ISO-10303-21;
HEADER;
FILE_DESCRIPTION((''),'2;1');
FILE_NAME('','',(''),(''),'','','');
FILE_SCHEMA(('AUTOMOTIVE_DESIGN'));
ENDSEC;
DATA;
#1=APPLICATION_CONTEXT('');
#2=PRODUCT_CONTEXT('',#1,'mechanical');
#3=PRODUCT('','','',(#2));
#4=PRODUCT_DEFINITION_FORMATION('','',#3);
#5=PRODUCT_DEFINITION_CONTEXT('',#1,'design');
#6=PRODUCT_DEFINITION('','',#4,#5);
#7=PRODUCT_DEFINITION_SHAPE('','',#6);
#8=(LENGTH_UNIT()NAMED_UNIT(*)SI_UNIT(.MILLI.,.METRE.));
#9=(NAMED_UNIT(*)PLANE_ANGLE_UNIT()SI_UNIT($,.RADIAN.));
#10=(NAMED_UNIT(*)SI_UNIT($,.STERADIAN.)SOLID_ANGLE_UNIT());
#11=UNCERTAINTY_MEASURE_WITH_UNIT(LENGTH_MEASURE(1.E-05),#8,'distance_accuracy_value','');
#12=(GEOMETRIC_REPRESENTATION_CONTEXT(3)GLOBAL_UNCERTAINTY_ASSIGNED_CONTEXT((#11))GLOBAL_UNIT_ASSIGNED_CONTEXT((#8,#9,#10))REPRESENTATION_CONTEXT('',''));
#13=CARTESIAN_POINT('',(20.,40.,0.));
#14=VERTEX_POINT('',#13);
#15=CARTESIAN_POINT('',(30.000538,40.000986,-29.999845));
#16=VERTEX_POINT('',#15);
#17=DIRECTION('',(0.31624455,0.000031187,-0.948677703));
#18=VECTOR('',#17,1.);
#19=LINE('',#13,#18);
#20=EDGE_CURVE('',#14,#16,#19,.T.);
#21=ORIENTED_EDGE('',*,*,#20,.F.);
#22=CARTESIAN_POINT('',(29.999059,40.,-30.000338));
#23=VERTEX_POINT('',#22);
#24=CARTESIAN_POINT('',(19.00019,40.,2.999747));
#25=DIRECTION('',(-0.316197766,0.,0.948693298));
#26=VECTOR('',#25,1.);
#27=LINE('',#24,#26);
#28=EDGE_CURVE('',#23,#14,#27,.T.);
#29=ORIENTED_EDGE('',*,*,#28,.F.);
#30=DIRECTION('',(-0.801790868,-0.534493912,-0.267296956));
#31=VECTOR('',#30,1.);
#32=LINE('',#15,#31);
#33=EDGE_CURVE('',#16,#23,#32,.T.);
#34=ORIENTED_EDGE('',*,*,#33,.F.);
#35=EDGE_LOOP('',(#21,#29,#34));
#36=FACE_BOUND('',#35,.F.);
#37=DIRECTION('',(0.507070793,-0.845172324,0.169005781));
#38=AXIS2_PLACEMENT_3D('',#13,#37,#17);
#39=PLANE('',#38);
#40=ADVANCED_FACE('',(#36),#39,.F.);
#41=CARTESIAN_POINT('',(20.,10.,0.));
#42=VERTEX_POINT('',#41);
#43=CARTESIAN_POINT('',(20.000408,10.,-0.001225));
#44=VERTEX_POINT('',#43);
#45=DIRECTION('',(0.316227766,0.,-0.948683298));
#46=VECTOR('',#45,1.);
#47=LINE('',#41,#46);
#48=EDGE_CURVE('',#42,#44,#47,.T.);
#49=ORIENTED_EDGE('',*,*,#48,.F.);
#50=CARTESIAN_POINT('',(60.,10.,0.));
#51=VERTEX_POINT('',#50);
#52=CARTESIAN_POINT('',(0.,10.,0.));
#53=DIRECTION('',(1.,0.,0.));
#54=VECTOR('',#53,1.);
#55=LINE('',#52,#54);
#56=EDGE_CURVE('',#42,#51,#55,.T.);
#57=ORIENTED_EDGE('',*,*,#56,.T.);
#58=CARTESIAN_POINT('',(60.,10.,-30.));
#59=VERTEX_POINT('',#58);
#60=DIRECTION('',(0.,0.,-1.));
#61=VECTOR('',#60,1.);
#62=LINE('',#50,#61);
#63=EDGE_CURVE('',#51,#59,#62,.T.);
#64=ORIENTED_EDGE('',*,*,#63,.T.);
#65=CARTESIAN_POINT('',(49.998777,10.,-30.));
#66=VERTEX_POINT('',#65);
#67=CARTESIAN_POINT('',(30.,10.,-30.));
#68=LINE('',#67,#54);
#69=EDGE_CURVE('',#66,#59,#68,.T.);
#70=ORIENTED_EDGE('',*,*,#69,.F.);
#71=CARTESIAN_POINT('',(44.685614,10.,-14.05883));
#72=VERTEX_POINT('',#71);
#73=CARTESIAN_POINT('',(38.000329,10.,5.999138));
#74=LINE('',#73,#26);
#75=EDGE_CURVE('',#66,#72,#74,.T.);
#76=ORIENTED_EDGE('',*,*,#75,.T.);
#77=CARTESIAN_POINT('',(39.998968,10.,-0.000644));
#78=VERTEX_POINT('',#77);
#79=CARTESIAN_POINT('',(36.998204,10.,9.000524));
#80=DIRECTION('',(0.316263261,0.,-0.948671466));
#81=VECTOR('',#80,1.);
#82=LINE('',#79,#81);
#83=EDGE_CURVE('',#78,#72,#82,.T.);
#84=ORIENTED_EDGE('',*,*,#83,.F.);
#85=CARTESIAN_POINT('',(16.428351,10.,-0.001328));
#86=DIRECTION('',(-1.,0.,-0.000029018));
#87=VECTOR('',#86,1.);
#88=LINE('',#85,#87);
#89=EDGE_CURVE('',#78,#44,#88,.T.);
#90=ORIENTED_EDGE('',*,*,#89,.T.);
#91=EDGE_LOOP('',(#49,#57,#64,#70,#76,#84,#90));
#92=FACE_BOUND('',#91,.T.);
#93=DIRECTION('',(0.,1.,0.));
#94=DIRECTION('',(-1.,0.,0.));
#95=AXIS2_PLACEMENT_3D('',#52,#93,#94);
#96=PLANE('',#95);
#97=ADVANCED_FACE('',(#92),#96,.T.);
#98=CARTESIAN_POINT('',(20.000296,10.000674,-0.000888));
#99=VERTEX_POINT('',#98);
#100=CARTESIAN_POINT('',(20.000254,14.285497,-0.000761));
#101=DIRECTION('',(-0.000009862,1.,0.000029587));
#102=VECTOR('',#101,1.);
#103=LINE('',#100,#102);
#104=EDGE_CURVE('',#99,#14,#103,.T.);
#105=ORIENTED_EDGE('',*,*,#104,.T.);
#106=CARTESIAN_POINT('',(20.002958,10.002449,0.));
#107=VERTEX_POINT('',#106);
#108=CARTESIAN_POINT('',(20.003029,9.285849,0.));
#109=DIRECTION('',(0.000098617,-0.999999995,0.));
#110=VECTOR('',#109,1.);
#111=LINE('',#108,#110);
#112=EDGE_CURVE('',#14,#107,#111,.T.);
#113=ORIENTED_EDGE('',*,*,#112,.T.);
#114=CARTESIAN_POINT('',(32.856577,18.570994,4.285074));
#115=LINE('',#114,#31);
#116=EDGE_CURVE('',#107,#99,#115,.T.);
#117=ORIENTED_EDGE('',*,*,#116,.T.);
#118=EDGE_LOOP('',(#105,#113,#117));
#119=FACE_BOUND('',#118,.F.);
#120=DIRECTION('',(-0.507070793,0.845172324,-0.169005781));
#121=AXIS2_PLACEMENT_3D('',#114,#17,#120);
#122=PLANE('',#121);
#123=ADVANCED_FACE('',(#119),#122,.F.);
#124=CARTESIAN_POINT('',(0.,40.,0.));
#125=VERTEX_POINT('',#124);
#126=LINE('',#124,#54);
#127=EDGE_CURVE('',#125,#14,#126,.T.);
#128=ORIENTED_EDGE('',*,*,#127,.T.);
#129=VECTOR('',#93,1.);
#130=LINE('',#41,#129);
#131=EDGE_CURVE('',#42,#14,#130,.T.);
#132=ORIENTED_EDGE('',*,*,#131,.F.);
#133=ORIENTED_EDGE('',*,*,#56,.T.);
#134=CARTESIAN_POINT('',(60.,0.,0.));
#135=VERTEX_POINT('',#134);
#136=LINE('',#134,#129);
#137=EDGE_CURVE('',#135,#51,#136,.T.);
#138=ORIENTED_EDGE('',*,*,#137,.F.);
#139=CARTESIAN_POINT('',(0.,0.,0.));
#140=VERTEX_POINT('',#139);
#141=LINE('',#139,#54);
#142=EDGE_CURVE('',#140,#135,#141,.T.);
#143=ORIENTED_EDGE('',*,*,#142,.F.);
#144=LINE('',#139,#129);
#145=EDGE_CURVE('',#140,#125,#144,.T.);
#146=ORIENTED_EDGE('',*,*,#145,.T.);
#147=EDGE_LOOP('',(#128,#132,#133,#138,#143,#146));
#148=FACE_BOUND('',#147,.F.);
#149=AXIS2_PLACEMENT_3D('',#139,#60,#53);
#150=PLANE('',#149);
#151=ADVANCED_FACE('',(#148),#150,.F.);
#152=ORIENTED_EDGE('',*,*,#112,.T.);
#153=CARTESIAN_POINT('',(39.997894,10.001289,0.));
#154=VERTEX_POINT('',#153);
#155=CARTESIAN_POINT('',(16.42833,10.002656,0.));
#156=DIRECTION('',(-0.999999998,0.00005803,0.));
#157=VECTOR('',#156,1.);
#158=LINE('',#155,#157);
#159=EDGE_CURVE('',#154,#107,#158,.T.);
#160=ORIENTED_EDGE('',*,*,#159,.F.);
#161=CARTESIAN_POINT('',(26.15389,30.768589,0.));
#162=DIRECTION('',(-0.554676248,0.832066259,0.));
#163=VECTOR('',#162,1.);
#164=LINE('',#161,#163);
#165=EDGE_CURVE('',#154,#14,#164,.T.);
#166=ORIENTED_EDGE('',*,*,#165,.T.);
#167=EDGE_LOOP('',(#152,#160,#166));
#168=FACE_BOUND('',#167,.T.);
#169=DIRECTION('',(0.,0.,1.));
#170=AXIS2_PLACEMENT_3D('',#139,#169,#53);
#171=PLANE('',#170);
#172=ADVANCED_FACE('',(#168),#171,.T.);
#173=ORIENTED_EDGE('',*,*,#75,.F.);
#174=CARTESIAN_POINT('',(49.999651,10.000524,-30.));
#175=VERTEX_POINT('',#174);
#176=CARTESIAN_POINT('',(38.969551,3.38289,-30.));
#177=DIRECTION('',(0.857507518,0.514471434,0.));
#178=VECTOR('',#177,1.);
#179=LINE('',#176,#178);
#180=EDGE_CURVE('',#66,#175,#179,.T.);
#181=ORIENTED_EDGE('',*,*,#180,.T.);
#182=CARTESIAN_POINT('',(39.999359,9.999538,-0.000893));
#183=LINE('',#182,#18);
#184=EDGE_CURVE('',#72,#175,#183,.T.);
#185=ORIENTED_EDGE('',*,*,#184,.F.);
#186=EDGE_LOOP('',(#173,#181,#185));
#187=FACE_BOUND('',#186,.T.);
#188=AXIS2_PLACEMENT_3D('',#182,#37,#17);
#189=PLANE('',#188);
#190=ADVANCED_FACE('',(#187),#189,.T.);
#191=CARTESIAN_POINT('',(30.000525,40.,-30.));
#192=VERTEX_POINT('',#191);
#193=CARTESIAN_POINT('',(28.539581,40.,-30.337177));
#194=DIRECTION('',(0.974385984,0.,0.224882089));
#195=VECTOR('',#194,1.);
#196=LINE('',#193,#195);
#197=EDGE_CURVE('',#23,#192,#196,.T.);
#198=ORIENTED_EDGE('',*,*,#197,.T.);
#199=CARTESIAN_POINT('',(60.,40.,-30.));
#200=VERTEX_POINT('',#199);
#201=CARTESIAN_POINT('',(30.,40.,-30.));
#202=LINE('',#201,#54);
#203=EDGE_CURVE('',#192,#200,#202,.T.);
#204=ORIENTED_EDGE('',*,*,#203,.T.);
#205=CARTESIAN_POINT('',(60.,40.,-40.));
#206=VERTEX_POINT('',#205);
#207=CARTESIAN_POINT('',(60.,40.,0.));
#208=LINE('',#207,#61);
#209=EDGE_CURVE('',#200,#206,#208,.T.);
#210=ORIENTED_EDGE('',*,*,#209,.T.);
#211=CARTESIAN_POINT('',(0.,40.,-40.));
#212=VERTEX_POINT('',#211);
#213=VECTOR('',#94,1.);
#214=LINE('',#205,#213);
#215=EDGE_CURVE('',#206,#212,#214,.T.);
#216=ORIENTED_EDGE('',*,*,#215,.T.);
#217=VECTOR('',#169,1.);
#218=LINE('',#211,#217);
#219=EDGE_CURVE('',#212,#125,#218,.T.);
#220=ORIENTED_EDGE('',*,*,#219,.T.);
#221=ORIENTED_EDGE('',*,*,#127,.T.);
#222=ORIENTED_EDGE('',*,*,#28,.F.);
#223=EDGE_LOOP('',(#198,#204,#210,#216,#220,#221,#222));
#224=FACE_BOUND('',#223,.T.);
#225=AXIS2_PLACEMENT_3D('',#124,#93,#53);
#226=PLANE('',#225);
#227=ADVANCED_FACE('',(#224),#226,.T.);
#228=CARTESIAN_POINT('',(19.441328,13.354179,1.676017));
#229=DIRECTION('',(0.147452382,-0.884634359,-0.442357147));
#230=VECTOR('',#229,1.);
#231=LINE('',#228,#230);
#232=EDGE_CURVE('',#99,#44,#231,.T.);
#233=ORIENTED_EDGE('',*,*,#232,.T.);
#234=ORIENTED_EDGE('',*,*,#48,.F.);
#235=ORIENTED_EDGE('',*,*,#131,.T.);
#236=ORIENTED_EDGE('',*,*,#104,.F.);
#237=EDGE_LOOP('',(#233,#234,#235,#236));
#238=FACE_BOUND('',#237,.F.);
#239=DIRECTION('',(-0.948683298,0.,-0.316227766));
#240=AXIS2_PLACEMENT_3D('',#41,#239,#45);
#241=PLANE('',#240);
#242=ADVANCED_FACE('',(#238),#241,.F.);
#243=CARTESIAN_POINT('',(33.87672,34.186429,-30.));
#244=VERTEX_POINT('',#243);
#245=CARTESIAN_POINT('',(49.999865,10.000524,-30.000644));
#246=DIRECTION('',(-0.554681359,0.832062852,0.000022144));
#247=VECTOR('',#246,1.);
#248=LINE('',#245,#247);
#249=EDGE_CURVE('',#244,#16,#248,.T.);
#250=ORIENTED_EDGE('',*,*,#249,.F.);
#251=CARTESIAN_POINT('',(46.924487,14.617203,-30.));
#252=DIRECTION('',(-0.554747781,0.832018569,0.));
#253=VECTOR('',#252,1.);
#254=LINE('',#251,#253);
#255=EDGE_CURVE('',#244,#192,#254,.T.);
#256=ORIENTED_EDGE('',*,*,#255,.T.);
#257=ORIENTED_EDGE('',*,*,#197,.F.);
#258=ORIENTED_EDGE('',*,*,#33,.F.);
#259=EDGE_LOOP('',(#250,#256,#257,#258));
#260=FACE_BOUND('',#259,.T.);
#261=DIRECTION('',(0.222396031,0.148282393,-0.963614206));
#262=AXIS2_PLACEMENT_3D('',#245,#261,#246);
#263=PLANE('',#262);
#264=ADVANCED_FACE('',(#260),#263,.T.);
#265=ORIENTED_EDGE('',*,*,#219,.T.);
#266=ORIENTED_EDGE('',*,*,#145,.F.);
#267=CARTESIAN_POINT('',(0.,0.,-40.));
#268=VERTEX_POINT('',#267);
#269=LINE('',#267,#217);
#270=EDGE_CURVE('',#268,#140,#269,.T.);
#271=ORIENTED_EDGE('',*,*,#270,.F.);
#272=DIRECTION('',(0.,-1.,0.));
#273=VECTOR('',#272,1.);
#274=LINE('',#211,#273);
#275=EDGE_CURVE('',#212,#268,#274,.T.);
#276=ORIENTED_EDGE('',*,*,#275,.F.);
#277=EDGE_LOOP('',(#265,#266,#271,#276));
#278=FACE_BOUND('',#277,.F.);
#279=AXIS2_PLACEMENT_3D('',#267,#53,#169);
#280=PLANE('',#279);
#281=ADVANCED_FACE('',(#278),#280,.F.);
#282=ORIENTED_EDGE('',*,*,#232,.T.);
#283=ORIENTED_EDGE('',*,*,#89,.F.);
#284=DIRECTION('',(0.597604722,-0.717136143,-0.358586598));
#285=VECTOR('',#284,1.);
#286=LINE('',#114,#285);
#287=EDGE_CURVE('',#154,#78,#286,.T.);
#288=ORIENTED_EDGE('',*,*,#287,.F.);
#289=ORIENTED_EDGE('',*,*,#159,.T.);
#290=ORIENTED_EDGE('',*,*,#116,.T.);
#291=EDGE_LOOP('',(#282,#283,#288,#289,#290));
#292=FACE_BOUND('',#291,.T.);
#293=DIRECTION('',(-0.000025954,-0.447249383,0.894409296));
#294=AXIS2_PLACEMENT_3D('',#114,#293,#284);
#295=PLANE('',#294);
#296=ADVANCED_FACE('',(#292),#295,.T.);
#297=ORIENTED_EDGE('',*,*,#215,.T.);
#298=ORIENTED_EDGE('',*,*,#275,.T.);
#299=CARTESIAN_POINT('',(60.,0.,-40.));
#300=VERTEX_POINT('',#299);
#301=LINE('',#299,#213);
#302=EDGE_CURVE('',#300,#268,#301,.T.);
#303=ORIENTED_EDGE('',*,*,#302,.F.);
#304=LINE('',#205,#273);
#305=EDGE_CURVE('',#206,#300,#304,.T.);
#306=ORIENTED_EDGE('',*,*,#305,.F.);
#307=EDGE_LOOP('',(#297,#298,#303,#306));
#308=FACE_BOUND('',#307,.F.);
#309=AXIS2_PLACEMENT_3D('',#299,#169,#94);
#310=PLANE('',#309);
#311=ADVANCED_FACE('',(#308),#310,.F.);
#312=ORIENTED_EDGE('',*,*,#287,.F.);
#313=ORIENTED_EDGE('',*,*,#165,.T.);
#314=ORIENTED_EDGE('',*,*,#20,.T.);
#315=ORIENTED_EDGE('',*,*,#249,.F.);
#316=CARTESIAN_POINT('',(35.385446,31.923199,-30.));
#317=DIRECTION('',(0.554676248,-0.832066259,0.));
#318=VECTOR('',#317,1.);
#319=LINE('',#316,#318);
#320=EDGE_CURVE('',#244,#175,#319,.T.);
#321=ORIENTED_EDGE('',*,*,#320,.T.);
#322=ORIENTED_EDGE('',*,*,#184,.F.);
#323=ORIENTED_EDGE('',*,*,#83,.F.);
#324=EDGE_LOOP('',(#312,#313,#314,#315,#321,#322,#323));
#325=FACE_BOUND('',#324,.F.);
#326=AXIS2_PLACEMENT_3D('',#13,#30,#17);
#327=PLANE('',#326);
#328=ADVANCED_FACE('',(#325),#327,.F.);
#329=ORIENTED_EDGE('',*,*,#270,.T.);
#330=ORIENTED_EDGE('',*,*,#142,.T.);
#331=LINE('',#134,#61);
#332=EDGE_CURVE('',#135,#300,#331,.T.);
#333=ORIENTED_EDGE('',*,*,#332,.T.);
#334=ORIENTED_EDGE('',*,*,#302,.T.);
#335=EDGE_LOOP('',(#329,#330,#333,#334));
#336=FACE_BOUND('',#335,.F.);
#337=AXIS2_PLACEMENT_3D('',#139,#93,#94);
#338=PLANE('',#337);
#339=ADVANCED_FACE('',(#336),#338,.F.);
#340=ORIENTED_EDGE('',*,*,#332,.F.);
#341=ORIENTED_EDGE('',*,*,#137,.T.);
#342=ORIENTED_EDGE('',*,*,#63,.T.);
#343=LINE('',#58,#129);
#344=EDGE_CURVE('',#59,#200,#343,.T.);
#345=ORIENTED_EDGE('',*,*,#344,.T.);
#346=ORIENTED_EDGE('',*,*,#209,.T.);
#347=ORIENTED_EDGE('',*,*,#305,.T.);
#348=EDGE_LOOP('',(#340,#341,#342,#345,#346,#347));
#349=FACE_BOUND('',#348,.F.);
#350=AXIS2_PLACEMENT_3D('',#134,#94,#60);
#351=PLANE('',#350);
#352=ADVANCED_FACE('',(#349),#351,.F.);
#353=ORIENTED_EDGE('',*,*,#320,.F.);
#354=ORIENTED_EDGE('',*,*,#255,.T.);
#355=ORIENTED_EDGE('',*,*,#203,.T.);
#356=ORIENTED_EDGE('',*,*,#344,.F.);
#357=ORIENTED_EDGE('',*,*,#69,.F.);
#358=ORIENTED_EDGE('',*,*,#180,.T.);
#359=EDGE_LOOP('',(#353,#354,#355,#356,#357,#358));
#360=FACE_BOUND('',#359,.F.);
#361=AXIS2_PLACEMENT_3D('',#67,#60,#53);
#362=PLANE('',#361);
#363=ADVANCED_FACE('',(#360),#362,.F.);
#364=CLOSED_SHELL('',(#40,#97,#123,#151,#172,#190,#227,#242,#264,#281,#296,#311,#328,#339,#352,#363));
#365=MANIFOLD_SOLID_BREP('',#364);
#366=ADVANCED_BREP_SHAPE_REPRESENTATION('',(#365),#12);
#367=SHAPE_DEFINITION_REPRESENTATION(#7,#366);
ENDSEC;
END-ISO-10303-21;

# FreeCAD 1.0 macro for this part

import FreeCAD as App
import Part
import Sketcher
Q = App.Units.Quantity


def add_polygon(sketch, points):
    """Adds a closed chain of lines whose ends are joined by coincident constraints."""
    first, n = sketch.GeometryCount, len(points)
    for a, b in zip(points, points[1:] + points[:1]):
        sketch.addGeometry(Part.LineSegment(App.Vector(*a, 0), App.Vector(*b, 0)), False)
    for i in range(n):
        sketch.addConstraint(Sketcher.Constraint("Coincident", first + i, 2, first + (i + 1) % n, 1))

doc = App.newDocument("Part")
body = doc.addObject("PartDesign::Body", "Body")

# Sketch on XZ plane
sketch1 = body.newObject("Sketcher::SketchObject", "Sketch")
sketch1.AttachmentSupport = (doc.getObject("XZ_Plane"), [""])
sketch1.MapMode = "FlatFace"
add_polygon(sketch1, [(0, -40), (0, 0), (60, 0), (60, -40)])  # lines 0-3
sketch1.addConstraint([
    Sketcher.Constraint("Vertical", 0),
    Sketcher.Constraint("Horizontal", 1),
    Sketcher.Constraint("Vertical", 2),
    Sketcher.Constraint("Horizontal", 3),
    Sketcher.Constraint("Coincident", 0, 2, -1, 1),
    Sketcher.Constraint("DistanceX", 1, 1, 1, 2, Q("2.3622 in")),
    Sketcher.Constraint("DistanceY", 0, 1, 0, 2, Q("1.5748 in")),
])
pad1 = body.newObject("PartDesign::Pad", "Pad")
pad1.Profile = sketch1
pad1.Length = Q("0.3937008 in")
pad1.Reversed = True

# Sketch on XZ plane
sketch2 = body.newObject("Sketcher::SketchObject", "Sketch001")
sketch2.AttachmentSupport = (doc.getObject("XZ_Plane"), [""])
sketch2.MapMode = "FlatFace"
sketch2.AttachmentOffset = App.Placement(App.Vector(0, 0, -0.3937008 * 25.4), App.Rotation())
add_polygon(sketch2, [(0, -40), (0, 0), (20, 0), (30, -30), (60, -30), (60, -40)])  # lines 0-5
sketch2.addConstraint([
    Sketcher.Constraint("Vertical", 0),
    Sketcher.Constraint("Horizontal", 1),
    Sketcher.Constraint("Horizontal", 3),
    Sketcher.Constraint("Vertical", 4),
    Sketcher.Constraint("Horizontal", 5),
    Sketcher.Constraint("Coincident", 0, 2, -1, 1),
    Sketcher.Constraint("DistanceX", 3, 1, 3, 2, Q("1.1811 in")),
    Sketcher.Constraint("DistanceY", 4, 2, 4, 1, Q("0.3937 in")),
    Sketcher.Constraint("DistanceX", -1, 1, 2, 2, Q("1.1811 in")),
    Sketcher.Constraint("DistanceY", 2, 2, -1, 1, Q("1.1811 in")),
    Sketcher.Constraint("DistanceX", 1, 2, 2, 2, Q("0.3937 in")),
])
pad2 = body.newObject("PartDesign::Pad", "Pad001")
pad2.Profile = sketch2
pad2.Length = Q("1.1811024 in")
pad2.Reversed = True

# Sketch on an angled plane
sketch3 = body.newObject("Sketcher::SketchObject", "Sketch002")
sketch3.Placement = App.Placement(App.Vector(20, 40, 0), App.Rotation(App.Vector(0.31624455, 0.000031187, -0.948677703), App.Vector(0.507070793, -0.845172325, 0.169005781), App.Vector(-0.801790868, -0.534493912, -0.267296956), "ZXY"))
add_polygon(sketch3, [(0, 0), (31.6228, 0), (37.9473, 35.4965), (6.324586, 35.496508), (0, 25.3546)])  # lines 0-4
sketch3.addConstraint([
    Sketcher.Constraint("Horizontal", 0),
    Sketcher.Constraint("Horizontal", 2),
    Sketcher.Constraint("Vertical", 4),
    Sketcher.Constraint("Coincident", 4, 2, -1, 1),
    Sketcher.Constraint("Equal", 0, 2),
    Sketcher.Constraint("DistanceX", 0, 1, 0, 2, Q("1.245 in")),
    Sketcher.Constraint("DistanceX", -1, 1, 1, 2, Q("1.494 in")),
    Sketcher.Constraint("Distance", 1, Q("1.4195 in")),
    Sketcher.Constraint("DistanceY", 4, 2, 4, 1, 25.3546),
])
pad3 = body.newObject("PartDesign::Pad", "Pad002")
pad3.Profile = sketch3
pad3.Length = 16.0358

# Sketch on XY plane
sketch4 = body.newObject("Sketcher::SketchObject", "Sketch003")
sketch4.AttachmentSupport = (doc.getObject("XY_Plane"), [""])
sketch4.MapMode = "FlatFace"
add_polygon(sketch4, [(66.1118, 48.4854), (-0.672, 48.4854), (-0.672, -3.1014), (66.1118, -3.1014)])  # lines 0-3
sketch4.addConstraint([
    Sketcher.Constraint("Horizontal", 0),
    Sketcher.Constraint("Vertical", 1),
    Sketcher.Constraint("Horizontal", 2),
    Sketcher.Constraint("Vertical", 3),
    Sketcher.Constraint("DistanceX", 0, 2, 0, 1, 66.7838),
    Sketcher.Constraint("DistanceY", 1, 2, 1, 1, 51.5868),
    Sketcher.Constraint("DistanceY", 1, 2, -1, 1, Q("0.1221 in")),
    Sketcher.Constraint("DistanceX", 0, 2, -1, 1, 0.672),
])
pocket1 = body.newObject("PartDesign::Pocket", "Pocket")
pocket1.Profile = sketch4
pocket1.Length = Q("1.1811024 in")
pocket1.Reversed = True

doc.recompute()
